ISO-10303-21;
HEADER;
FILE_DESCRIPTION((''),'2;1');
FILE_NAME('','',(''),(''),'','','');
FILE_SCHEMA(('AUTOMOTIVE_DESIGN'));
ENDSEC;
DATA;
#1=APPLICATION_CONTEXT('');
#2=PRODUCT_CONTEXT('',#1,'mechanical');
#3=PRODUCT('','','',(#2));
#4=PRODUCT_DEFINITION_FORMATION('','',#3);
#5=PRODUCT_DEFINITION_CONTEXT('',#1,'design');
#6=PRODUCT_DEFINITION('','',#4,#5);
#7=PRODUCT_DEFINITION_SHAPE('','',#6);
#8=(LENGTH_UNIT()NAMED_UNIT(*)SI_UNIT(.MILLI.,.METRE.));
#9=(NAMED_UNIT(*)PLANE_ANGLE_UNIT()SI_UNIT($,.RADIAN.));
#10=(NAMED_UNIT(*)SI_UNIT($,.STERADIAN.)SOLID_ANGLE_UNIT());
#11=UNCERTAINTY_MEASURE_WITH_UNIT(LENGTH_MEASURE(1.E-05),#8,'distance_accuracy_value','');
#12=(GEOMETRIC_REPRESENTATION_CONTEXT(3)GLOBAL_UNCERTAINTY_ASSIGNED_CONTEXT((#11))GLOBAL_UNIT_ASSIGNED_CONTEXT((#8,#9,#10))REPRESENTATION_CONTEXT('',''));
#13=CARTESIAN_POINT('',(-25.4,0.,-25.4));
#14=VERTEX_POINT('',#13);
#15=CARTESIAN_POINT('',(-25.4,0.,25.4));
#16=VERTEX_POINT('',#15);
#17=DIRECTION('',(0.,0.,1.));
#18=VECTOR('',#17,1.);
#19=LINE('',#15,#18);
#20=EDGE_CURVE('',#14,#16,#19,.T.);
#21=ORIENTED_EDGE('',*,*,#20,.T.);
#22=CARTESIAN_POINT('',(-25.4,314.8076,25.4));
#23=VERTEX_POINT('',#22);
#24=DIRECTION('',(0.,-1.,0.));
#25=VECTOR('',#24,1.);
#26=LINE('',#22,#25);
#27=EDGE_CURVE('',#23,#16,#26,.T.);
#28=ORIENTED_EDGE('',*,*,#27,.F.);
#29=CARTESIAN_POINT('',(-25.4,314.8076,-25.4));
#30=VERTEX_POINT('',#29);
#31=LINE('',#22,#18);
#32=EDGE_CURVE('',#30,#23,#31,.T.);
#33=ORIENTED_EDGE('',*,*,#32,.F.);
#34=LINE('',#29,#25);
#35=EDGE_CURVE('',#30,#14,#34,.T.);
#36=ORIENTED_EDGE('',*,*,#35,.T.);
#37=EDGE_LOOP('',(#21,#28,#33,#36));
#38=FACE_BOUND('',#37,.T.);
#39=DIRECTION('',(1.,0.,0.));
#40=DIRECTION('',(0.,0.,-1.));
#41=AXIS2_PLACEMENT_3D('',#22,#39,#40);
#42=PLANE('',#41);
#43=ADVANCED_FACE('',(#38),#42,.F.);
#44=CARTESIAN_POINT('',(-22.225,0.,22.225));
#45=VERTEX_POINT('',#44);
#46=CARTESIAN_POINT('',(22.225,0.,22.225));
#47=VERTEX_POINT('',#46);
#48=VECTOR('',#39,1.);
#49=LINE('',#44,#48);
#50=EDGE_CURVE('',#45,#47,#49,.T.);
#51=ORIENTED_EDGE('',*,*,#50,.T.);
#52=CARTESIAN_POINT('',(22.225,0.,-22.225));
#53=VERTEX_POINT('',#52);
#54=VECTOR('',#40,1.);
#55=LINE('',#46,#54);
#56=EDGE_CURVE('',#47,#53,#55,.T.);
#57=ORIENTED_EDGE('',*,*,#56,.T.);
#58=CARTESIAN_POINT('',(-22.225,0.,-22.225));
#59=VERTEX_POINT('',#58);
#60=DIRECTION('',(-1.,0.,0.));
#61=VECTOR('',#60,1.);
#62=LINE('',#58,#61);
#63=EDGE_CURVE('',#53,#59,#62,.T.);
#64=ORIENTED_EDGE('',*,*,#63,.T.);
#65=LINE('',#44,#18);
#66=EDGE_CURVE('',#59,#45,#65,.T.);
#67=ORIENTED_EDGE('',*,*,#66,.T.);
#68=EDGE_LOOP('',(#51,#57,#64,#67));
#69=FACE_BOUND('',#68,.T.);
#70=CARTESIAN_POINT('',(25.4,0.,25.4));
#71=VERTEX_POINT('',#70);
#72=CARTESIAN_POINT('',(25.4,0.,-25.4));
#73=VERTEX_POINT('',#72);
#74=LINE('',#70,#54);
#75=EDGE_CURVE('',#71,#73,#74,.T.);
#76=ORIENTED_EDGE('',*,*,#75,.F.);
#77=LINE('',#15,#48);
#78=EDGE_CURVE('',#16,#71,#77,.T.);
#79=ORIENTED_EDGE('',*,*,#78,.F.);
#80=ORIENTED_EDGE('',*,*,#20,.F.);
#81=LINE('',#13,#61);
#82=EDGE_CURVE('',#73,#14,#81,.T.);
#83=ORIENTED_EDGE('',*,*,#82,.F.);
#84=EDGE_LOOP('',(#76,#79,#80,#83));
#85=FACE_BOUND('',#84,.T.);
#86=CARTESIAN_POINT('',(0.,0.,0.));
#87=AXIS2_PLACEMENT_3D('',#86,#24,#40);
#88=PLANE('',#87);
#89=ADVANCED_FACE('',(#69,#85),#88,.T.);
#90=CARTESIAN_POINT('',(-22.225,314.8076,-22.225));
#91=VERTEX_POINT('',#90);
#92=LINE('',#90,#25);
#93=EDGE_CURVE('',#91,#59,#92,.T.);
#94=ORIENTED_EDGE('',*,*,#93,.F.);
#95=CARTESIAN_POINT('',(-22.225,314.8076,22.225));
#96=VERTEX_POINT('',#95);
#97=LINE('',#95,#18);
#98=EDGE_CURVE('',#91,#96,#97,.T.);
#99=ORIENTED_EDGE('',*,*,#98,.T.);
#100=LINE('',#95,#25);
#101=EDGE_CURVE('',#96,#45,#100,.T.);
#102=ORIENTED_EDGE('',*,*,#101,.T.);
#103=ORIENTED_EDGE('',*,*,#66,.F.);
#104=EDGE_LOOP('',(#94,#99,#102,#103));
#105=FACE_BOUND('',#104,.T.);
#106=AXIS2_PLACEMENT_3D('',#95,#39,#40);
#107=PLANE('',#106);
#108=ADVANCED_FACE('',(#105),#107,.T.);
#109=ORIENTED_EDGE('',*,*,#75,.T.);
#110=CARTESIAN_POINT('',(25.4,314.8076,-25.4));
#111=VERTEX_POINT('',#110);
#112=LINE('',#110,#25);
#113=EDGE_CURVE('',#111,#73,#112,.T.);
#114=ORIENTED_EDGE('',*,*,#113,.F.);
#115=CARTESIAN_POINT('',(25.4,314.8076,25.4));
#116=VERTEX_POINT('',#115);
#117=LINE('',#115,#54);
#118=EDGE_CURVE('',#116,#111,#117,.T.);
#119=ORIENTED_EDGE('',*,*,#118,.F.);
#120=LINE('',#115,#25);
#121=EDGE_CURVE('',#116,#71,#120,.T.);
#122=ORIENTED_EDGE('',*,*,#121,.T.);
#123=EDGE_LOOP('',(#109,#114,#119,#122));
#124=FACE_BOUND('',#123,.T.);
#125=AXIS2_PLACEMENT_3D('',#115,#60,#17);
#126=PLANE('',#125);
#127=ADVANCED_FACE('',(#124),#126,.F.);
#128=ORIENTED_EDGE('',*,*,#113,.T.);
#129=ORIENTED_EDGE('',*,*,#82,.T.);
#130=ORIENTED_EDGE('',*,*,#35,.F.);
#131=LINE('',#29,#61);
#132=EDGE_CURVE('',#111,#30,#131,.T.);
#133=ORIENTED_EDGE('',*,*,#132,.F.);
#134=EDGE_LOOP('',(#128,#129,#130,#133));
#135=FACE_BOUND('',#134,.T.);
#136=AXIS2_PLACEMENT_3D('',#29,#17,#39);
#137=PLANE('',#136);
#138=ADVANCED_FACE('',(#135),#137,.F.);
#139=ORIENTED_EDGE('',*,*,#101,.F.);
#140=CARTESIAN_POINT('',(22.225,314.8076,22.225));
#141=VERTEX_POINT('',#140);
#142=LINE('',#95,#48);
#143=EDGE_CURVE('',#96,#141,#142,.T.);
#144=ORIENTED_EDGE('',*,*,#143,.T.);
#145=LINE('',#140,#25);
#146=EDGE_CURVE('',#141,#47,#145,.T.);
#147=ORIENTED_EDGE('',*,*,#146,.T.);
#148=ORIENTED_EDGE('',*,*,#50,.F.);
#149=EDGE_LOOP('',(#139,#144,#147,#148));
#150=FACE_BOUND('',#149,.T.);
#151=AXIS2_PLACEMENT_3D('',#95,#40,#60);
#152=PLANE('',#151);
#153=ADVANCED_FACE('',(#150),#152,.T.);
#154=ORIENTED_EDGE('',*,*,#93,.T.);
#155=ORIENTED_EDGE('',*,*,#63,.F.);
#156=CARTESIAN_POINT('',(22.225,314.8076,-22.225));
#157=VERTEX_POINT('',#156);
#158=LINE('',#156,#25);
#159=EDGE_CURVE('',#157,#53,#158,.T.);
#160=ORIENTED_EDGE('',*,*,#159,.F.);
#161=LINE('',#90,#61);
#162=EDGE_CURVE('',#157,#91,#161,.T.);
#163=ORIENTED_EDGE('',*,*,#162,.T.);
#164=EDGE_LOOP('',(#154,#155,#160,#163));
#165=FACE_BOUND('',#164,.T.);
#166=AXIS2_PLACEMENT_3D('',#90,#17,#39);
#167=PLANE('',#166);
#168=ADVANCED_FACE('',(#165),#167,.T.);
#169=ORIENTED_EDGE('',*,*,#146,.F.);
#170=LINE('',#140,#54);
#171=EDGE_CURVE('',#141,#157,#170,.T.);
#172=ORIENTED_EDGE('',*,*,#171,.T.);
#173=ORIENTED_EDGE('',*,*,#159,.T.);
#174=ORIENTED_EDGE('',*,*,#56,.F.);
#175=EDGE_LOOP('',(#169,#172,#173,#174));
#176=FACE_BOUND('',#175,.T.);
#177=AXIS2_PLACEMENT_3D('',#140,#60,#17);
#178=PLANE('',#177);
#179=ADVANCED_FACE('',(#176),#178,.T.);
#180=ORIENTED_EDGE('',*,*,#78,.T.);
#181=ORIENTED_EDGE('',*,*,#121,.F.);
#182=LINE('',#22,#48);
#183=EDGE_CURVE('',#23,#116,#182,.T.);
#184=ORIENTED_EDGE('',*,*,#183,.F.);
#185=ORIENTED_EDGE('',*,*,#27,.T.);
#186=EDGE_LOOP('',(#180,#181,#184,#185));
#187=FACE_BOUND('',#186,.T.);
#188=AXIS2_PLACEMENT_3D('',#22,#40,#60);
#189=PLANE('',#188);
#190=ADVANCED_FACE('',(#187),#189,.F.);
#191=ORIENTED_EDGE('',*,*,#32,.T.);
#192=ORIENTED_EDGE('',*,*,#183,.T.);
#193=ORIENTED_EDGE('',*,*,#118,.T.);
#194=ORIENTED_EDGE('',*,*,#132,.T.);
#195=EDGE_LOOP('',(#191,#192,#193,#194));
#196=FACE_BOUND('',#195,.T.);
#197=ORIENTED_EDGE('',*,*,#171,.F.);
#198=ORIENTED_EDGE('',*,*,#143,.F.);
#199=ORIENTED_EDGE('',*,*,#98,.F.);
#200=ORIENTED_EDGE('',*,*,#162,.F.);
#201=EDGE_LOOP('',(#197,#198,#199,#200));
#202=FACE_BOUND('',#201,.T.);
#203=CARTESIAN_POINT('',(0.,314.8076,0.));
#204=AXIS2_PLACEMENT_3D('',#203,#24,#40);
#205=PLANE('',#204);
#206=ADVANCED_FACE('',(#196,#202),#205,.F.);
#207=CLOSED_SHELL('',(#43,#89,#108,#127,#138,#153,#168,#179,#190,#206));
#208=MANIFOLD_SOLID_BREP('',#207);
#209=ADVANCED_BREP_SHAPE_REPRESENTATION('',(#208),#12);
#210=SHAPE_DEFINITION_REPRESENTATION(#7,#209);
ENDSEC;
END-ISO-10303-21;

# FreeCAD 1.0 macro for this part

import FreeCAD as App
import Part
import Sketcher
from FreeCAD import Vector
Q = App.Units.Quantity


def add_polygon(sketch, points):
    """Adds a closed chain of lines whose ends are joined by coincident constraints."""
    first, n = sketch.GeometryCount, len(points)
    for a, b in zip(points, points[1:] + points[:1]):
        sketch.addGeometry(Part.LineSegment(App.Vector(*a, 0), App.Vector(*b, 0)), False)
    for i in range(n):
        sketch.addConstraint(Sketcher.Constraint("Coincident", first + i, 2, first + (i + 1) % n, 1))

doc = App.newDocument("Part")
body = doc.addObject("PartDesign::Body", "Body")

# Sketch on XZ plane
sketch1 = doc.addObject("Sketcher::SketchObject", "Sketch")
body.addObject(sketch1)
sketch1.AttachmentSupport = (doc.XZ_Plane, [""])
sketch1.MapMode = "FlatFace"
add_polygon(sketch1, [(-25, -25), (-25, 25), (25, 25), (25, -25)])  # lines 0-3
add_polygon(sketch1, [(22, 22), (-22, 22), (-22, -22), (22, -22)])  # lines 4-7
sketch1.addConstraint(Sketcher.Constraint("Vertical", 0))
sketch1.addConstraint(Sketcher.Constraint("Horizontal", 1))
sketch1.addConstraint(Sketcher.Constraint("Vertical", 2))
sketch1.addConstraint(Sketcher.Constraint("Horizontal", 3))
sketch1.addConstraint(Sketcher.Constraint("Horizontal", 4))
sketch1.addConstraint(Sketcher.Constraint("Vertical", 5))
sketch1.addConstraint(Sketcher.Constraint("Horizontal", 6))
sketch1.addConstraint(Sketcher.Constraint("Vertical", 7))
sketch1.addConstraint(Sketcher.Constraint("Symmetric", 0, 2, 2, 2, -1, 1))
sketch1.addConstraint(Sketcher.Constraint("Symmetric", 4, 2, 6, 2, -1, 1))
sketch1.addConstraint(Sketcher.Constraint("Equal", 3, 0))
sketch1.addConstraint(Sketcher.Constraint("Equal", 6, 5))
sketch1.addConstraint(Sketcher.Constraint("DistanceX", 1, 1, 1, 2, Q("2 in")))
sketch1.addConstraint(Sketcher.Constraint("DistanceX", 4, 2, 4, 1, Q("1.75 in")))
pad1 = doc.addObject("PartDesign::Pad", "Pad")
body.addObject(pad1)
pad1.Profile = sketch1
pad1.Length = Q("12.394 in")
pad1.Reversed = True

doc.recompute()
